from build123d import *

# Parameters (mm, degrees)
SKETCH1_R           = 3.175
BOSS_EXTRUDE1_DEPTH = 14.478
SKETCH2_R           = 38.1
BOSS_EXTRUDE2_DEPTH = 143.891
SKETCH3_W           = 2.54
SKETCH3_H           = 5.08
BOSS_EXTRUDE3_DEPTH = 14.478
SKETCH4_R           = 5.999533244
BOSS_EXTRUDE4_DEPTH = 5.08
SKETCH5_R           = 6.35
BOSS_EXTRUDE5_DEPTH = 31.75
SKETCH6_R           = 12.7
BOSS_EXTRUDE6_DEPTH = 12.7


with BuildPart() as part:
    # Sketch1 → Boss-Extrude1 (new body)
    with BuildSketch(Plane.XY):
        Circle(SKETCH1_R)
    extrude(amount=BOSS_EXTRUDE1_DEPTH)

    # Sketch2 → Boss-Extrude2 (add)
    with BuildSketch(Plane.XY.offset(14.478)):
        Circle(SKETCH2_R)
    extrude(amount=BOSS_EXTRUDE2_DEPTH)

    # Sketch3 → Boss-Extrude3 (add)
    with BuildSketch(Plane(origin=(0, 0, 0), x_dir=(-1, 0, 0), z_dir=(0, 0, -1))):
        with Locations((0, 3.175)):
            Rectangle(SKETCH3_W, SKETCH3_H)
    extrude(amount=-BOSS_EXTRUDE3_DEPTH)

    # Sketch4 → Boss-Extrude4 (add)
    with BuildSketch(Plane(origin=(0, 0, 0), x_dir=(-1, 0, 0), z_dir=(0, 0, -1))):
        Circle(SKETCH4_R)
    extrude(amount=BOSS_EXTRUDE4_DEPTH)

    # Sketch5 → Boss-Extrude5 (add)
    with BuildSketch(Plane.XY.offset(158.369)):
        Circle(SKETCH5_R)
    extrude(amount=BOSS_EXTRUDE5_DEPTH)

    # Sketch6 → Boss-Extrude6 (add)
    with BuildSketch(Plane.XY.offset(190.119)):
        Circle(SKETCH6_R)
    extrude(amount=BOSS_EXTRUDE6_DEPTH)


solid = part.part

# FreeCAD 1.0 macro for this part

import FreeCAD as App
import Part
import Sketcher
Q = App.Units.Quantity


def add_polygon(sketch, points):
    """Adds a closed chain of lines whose ends are joined by coincident constraints."""
    first, n = sketch.GeometryCount, len(points)
    for a, b in zip(points, points[1:] + points[:1]):
        sketch.addGeometry(Part.LineSegment(App.Vector(*a, 0), App.Vector(*b, 0)), False)
    for i in range(n):
        sketch.addConstraint(Sketcher.Constraint("Coincident", first + i, 2, first + (i + 1) % n, 1))

doc = App.newDocument("Part")
body = doc.addObject("PartDesign::Body", "Body")

# Sketch on XY plane
sketch1 = body.newObject("Sketcher::SketchObject", "Sketch")
sketch1.AttachmentSupport = (doc.getObject("XY_Plane"), [""])
sketch1.MapMode = "FlatFace"
sketch1.addGeometry(Part.Circle(App.Vector(0, 0, 0), App.Vector(0, 0, 1), 3.2), False)
sketch1.addConstraint([
    Sketcher.Constraint("Coincident", 0, 3, -1, 1),
    Sketcher.Constraint("Diameter", 0, Q("0.25 in")),
])
pad1 = body.newObject("PartDesign::Pad", "Pad")
pad1.Profile = sketch1
pad1.Length = Q("0.57 in")

# Sketch on XY plane
sketch2 = body.newObject("Sketcher::SketchObject", "Sketch001")
sketch2.AttachmentSupport = (doc.getObject("XY_Plane"), [""])
sketch2.MapMode = "FlatFace"
sketch2.AttachmentOffset = App.Placement(App.Vector(0, 0, 0.57 * 25.4), App.Rotation())
sketch2.addGeometry(Part.Circle(App.Vector(0, 0, 0), App.Vector(0, 0, 1), 38), False)
sketch2.addConstraint([
    Sketcher.Constraint("Coincident", 0, 3, -1, 1),
    Sketcher.Constraint("Diameter", 0, Q("3 in")),
])
pad2 = body.newObject("PartDesign::Pad", "Pad001")
pad2.Profile = sketch2
pad2.Length = Q("5.665 in")

# Sketch on XY plane
sketch3 = body.newObject("Sketcher::SketchObject", "Sketch002")
sketch3.AttachmentSupport = (doc.getObject("XY_Plane"), [""])
sketch3.MapMode = "FlatFace"
add_polygon(sketch3, [(1.3, 5.7), (1.3, 0.6), (-1.3, 0.6), (-1.3, 5.7)])  # lines 0-3
sketch3.addConstraint([
    Sketcher.Constraint("Vertical", 0),
    Sketcher.Constraint("Horizontal", 1),
    Sketcher.Constraint("Vertical", 2),
    Sketcher.Constraint("Horizontal", 3),
    Sketcher.Constraint("DistanceX", 1, 2, 1, 1, Q("0.1 in")),
    Sketcher.Constraint("DistanceY", 0, 2, 0, 1, Q("0.2 in")),
    Sketcher.Constraint("DistanceX", -1, 1, 0, 2, Q("0.05 in")),
    Sketcher.Constraint("DistanceY", -1, 1, 0, 2, Q("0.025 in")),
])
pad3 = body.newObject("PartDesign::Pad", "Pad002")
pad3.Profile = sketch3
pad3.Length = Q("0.57 in")

# Sketch on XY plane
sketch4 = body.newObject("Sketcher::SketchObject", "Sketch003")
sketch4.AttachmentSupport = (doc.getObject("XY_Plane"), [""])
sketch4.MapMode = "FlatFace"
sketch4.addGeometry(Part.Circle(App.Vector(0, 0, 0), App.Vector(0, 0, 1), 6), False)
sketch4.addConstraint([
    Sketcher.Constraint("Coincident", 0, 3, -1, 1),
    Sketcher.Constraint("Diameter", 0, Q("11.999066 mm")),
])
pad4 = body.newObject("PartDesign::Pad", "Pad003")
pad4.Profile = sketch4
pad4.Length = Q("0.2 in")
pad4.Reversed = True

# Sketch on XY plane
sketch5 = body.newObject("Sketcher::SketchObject", "Sketch004")
sketch5.AttachmentSupport = (doc.getObject("XY_Plane"), [""])
sketch5.MapMode = "FlatFace"
sketch5.AttachmentOffset = App.Placement(App.Vector(0, 0, 6.235 * 25.4), App.Rotation())
sketch5.addGeometry(Part.Circle(App.Vector(0, 0, 0), App.Vector(0, 0, 1), 6), False)
sketch5.addConstraint([
    Sketcher.Constraint("Coincident", 0, 3, -1, 1),
    Sketcher.Constraint("Diameter", 0, Q("0.5 in")),
])
pad5 = body.newObject("PartDesign::Pad", "Pad004")
pad5.Profile = sketch5
pad5.Length = Q("1.25 in")

# Sketch on XY plane
sketch6 = body.newObject("Sketcher::SketchObject", "Sketch005")
sketch6.AttachmentSupport = (doc.getObject("XY_Plane"), [""])
sketch6.MapMode = "FlatFace"
sketch6.AttachmentOffset = App.Placement(App.Vector(0, 0, 7.485 * 25.4), App.Rotation())
sketch6.addGeometry(Part.Circle(App.Vector(0, 0, 0), App.Vector(0, 0, 1), 13), False)
sketch6.addConstraint([
    Sketcher.Constraint("Coincident", 0, 3, -1, 1),
    Sketcher.Constraint("Diameter", 0, Q("1 in")),
])
pad6 = body.newObject("PartDesign::Pad", "Pad005")
pad6.Profile = sketch6
pad6.Length = Q("0.5 in")

doc.recompute()
